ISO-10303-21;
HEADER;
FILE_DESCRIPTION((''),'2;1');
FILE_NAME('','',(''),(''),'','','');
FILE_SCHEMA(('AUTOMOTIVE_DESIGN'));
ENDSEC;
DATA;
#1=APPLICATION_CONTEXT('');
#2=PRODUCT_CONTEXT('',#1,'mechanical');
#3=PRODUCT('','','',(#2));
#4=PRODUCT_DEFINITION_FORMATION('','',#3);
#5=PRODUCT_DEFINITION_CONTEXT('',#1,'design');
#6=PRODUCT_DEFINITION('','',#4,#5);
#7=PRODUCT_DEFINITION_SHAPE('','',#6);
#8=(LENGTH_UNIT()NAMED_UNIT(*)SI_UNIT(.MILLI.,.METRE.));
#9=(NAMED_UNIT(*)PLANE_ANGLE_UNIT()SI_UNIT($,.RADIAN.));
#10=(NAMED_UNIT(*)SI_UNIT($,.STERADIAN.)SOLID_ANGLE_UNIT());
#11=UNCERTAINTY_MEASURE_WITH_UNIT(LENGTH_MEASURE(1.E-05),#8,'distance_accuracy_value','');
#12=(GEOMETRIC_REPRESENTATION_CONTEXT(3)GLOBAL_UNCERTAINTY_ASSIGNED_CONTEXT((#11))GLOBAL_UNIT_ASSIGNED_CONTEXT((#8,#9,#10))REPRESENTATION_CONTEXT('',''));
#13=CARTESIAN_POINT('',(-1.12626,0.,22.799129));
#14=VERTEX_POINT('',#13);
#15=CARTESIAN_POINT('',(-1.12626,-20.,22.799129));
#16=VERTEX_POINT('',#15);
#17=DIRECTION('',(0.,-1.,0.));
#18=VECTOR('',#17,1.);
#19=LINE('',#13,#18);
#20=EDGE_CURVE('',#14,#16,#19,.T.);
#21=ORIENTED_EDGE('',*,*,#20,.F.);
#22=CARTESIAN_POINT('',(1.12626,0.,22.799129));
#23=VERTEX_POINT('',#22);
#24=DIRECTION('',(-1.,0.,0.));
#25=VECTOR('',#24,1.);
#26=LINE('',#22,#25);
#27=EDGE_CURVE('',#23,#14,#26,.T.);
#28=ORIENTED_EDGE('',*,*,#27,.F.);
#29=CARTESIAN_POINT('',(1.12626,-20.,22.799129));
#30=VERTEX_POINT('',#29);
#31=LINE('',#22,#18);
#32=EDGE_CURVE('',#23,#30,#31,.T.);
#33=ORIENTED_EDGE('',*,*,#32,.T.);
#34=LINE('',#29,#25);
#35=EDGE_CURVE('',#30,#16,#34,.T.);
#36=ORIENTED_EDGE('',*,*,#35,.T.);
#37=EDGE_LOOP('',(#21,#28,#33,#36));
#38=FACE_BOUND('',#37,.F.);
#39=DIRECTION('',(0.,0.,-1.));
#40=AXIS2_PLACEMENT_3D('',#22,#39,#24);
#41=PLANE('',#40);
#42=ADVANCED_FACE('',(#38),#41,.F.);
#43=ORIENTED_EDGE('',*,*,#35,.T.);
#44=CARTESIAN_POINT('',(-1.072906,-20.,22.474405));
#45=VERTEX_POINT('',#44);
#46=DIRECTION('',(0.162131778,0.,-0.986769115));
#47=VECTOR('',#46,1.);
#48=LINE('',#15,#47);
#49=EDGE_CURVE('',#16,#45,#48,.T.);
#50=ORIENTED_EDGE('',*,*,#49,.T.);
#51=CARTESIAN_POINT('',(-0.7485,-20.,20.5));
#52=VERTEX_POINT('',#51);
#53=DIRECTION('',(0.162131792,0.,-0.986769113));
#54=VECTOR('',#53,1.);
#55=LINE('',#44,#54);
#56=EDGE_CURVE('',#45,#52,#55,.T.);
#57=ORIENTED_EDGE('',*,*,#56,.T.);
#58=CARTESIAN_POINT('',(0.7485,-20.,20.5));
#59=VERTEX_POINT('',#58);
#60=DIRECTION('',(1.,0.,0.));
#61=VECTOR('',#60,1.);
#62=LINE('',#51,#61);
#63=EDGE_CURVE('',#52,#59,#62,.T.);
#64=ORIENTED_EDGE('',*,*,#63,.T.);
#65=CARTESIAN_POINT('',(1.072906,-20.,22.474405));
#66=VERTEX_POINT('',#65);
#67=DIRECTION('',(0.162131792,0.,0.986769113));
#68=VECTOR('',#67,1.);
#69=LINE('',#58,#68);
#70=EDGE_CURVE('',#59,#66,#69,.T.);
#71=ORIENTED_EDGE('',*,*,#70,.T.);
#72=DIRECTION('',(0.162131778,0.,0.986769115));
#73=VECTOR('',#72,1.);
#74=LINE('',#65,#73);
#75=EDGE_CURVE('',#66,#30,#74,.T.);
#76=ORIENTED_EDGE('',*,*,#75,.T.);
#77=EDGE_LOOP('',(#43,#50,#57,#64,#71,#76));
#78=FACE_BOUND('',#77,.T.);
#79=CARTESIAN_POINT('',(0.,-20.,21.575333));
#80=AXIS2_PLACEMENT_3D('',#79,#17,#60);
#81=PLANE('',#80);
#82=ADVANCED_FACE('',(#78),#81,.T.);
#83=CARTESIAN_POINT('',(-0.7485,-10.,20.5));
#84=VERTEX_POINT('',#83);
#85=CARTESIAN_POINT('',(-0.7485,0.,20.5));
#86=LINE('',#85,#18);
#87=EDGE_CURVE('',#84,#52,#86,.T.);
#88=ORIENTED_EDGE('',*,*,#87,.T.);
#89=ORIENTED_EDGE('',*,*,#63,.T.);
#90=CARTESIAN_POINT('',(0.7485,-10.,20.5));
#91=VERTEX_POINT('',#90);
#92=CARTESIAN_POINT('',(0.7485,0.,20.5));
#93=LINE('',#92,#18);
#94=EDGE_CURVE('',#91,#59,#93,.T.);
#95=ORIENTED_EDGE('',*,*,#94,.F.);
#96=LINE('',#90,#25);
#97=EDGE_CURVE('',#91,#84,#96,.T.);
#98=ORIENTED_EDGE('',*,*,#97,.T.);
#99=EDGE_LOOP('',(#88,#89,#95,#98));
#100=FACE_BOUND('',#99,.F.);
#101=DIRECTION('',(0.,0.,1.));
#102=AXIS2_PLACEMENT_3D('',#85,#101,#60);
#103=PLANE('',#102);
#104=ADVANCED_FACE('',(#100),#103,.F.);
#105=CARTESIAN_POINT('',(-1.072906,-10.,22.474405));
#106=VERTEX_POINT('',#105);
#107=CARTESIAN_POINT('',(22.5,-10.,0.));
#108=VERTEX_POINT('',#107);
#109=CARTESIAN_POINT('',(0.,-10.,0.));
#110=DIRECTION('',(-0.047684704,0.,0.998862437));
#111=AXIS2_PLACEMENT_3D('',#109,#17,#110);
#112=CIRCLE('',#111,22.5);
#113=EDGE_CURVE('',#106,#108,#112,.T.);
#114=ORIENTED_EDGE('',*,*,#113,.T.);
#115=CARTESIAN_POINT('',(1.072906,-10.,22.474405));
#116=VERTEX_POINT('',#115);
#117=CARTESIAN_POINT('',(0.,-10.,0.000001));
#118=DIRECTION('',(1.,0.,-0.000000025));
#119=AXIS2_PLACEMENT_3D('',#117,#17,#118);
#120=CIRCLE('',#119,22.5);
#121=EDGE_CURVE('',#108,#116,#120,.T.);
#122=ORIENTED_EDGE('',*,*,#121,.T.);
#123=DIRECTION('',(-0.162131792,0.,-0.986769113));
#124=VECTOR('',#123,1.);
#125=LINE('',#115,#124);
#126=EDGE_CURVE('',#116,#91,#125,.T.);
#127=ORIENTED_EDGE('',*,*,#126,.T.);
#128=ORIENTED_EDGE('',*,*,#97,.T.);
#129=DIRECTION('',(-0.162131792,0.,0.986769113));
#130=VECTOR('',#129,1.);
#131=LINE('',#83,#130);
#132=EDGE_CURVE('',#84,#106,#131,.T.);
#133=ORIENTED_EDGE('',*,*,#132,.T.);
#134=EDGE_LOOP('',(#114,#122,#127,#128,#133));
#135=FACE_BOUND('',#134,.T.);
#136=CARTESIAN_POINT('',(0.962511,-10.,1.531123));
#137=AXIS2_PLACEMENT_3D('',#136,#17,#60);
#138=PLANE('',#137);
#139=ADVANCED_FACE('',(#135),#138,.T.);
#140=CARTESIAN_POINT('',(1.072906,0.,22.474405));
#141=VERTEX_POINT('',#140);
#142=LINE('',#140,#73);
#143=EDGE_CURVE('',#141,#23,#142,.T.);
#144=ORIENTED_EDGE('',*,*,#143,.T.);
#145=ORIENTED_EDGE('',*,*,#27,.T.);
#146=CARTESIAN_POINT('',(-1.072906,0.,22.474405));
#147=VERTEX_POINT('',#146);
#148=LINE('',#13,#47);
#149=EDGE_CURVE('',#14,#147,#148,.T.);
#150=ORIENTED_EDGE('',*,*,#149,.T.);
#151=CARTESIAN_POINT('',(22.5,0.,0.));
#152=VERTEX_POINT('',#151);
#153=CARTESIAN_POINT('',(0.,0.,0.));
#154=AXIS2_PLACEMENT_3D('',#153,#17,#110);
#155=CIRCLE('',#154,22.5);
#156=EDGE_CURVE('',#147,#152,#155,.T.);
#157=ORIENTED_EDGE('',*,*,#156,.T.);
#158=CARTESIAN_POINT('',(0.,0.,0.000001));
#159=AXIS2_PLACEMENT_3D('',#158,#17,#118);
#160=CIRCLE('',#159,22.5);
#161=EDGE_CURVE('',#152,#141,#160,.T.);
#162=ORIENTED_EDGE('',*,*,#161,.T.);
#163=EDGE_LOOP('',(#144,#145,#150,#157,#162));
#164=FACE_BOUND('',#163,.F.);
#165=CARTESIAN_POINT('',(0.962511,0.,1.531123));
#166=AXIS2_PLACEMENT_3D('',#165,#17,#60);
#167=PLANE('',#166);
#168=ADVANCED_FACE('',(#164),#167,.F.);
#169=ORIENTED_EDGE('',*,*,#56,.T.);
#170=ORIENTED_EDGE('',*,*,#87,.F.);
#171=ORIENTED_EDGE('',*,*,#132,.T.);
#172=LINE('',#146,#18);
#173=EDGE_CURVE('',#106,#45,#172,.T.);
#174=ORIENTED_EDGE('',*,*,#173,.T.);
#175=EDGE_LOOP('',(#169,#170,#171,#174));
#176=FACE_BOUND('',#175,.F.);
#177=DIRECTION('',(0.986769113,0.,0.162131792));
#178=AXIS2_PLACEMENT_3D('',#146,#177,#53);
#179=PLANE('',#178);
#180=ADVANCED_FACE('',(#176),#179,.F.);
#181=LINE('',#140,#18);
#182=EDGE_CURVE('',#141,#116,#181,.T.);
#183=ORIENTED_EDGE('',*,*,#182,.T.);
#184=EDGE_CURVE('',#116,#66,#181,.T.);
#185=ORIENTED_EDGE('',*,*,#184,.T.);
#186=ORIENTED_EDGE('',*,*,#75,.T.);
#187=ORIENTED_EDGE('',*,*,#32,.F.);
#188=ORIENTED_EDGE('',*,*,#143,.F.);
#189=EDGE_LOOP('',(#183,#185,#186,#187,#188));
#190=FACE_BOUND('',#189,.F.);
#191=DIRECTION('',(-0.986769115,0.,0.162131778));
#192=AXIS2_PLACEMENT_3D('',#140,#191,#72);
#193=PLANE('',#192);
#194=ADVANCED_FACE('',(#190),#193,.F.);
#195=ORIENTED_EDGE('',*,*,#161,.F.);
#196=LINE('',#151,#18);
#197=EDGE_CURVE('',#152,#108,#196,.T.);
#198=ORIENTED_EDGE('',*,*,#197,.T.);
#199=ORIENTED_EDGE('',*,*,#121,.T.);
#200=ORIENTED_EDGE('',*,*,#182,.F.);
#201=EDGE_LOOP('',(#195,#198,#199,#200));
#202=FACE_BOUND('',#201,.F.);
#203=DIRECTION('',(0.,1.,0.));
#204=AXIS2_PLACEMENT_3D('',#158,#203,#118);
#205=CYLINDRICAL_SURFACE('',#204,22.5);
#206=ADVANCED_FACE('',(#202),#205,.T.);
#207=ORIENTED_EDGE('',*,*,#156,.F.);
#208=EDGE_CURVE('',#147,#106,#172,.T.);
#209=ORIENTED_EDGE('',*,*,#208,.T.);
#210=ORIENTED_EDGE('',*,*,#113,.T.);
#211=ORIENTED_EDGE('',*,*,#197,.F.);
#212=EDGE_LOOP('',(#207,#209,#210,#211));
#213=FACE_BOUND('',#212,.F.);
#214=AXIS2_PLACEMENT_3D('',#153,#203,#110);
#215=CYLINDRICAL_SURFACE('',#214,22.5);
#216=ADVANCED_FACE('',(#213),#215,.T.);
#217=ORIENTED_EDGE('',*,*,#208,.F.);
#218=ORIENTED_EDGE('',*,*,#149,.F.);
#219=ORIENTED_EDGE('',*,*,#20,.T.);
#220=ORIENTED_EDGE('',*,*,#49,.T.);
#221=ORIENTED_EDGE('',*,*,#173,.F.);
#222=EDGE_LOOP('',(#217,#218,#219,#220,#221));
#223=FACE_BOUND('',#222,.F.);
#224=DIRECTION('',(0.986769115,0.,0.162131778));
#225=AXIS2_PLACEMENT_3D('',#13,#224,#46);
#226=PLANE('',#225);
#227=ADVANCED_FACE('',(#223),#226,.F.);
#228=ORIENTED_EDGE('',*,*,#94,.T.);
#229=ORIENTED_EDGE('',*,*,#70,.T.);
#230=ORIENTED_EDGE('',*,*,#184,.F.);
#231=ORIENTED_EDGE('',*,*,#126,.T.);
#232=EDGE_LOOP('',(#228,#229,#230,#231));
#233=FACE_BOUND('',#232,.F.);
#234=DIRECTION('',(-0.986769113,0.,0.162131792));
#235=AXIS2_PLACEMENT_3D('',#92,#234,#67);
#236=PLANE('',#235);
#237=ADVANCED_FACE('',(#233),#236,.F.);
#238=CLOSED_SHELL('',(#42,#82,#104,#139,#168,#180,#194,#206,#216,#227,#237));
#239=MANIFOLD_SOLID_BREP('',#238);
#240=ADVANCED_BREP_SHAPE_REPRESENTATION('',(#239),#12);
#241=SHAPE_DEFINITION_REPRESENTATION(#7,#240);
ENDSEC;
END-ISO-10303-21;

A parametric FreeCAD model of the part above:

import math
import FreeCAD as App
import Part
import Sketcher
Q = App.Units.Quantity


def add_polygon(sketch, points):
    """Adds a closed chain of lines whose ends are joined by coincident constraints."""
    first, n = sketch.GeometryCount, len(points)
    for a, b in zip(points, points[1:] + points[:1]):
        sketch.addGeometry(Part.LineSegment(App.Vector(*a, 0), App.Vector(*b, 0)), False)
    for i in range(n):
        sketch.addConstraint(Sketcher.Constraint("Coincident", first + i, 2, first + (i + 1) % n, 1))

doc = App.newDocument("Part")
body = doc.addObject("PartDesign::Body", "Body")

# Sketch on XZ plane
sketch1 = body.newObject("Sketcher::SketchObject", "Sketch")
sketch1.AttachmentSupport = (doc.getObject("XZ_Plane"), [""])
sketch1.MapMode = "FlatFace"
add_polygon(sketch1, [(0.75, 20.5), (1.07, 22.47), (1.13, 22.8), (-1.13, 22.8), (-1.07, 22.47), (-0.75, 20.5)])  # lines 0-5
sketch1.addConstraint([
    Sketcher.Constraint("Horizontal", 2),
    Sketcher.Constraint("Horizontal", 5),
    Sketcher.Constraint("Symmetric", 0, 2, 3, 2, -2),
    Sketcher.Constraint("Parallel", 0, 1),
    Sketcher.Constraint("Parallel", 3, 4),
    Sketcher.Constraint("Equal", 1, 3),
    Sketcher.Constraint("DistanceY", -1, 1, 4, 2, Q("20.5 mm")),
    Sketcher.Constraint("DistanceX", 5, 1, 5, 2, Q("1.497 mm")),
    Sketcher.Constraint("DistanceX", 2, 2, 2, 1, Q("2.25252 mm")),
    Sketcher.Constraint("Distance", 0, Q("2.000878 mm")),
    Sketcher.Constraint("DistanceY", -1, 1, 1, 2, Q("22.799129 mm")),
])
pad1 = body.newObject("PartDesign::Pad", "Pad")
pad1.Profile = sketch1
pad1.Length = 20

# Sketch on XZ plane
sketch2 = body.newObject("Sketcher::SketchObject", "Sketch001")
sketch2.AttachmentSupport = (doc.getObject("XZ_Plane"), [""])
sketch2.MapMode = "FlatFace"
sketch2.addGeometry([
    Part.ArcOfCircle(Part.Circle(App.Vector(0, 0, 0), App.Vector(0, 0, 1), 22.5), math.radians(93), math.radians(360)),  # 0
    Part.ArcOfCircle(Part.Circle(App.Vector(0, 0, 0), App.Vector(0, 0, 1), 22.5), math.radians(0), math.radians(87)),  # 1
    Part.LineSegment(App.Vector(1.1, 22.5, 0), App.Vector(0.7, 20.5, 0)),  # 2
    Part.LineSegment(App.Vector(0.7, 20.5, 0), App.Vector(-0.7, 20.5, 0)),  # 3
    Part.LineSegment(App.Vector(-0.7, 20.5, 0), App.Vector(-1.1, 22.5, 0)),  # 4
], False)
sketch2.addConstraint([
    Sketcher.Constraint("Tangent", 0, 2, 1, 1),
    Sketcher.Constraint("Coincident", 1, 2, 2, 1),
    Sketcher.Constraint("Coincident", 2, 2, 3, 1),
    Sketcher.Constraint("Coincident", 3, 2, 4, 1),
    Sketcher.Constraint("Coincident", 4, 2, 0, 1),
    Sketcher.Constraint("Horizontal", 3),
    Sketcher.Constraint("Coincident", 0, 3, -1, 1),
    Sketcher.Constraint("Equal", 0, 1),
    Sketcher.Constraint("PointOnObject", 0, 2, -1),
    Sketcher.Constraint("Horizontal", 1, 2, 4, 2),
    Sketcher.Constraint("Equal", 2, 4),
    Sketcher.Constraint("Radius", 0, Q("22.5 mm")),
    Sketcher.Constraint("DistanceY", -1, 1, 2, 2, Q("20.5 mm")),
    Sketcher.Constraint("DistanceX", 3, 2, 3, 1, Q("1.497 mm")),
    Sketcher.Constraint("Distance", 2, Q("2.000878 mm")),
])
pad2 = body.newObject("PartDesign::Pad", "Pad001")
pad2.Profile = sketch2
pad2.Length = 10

doc.recompute()
